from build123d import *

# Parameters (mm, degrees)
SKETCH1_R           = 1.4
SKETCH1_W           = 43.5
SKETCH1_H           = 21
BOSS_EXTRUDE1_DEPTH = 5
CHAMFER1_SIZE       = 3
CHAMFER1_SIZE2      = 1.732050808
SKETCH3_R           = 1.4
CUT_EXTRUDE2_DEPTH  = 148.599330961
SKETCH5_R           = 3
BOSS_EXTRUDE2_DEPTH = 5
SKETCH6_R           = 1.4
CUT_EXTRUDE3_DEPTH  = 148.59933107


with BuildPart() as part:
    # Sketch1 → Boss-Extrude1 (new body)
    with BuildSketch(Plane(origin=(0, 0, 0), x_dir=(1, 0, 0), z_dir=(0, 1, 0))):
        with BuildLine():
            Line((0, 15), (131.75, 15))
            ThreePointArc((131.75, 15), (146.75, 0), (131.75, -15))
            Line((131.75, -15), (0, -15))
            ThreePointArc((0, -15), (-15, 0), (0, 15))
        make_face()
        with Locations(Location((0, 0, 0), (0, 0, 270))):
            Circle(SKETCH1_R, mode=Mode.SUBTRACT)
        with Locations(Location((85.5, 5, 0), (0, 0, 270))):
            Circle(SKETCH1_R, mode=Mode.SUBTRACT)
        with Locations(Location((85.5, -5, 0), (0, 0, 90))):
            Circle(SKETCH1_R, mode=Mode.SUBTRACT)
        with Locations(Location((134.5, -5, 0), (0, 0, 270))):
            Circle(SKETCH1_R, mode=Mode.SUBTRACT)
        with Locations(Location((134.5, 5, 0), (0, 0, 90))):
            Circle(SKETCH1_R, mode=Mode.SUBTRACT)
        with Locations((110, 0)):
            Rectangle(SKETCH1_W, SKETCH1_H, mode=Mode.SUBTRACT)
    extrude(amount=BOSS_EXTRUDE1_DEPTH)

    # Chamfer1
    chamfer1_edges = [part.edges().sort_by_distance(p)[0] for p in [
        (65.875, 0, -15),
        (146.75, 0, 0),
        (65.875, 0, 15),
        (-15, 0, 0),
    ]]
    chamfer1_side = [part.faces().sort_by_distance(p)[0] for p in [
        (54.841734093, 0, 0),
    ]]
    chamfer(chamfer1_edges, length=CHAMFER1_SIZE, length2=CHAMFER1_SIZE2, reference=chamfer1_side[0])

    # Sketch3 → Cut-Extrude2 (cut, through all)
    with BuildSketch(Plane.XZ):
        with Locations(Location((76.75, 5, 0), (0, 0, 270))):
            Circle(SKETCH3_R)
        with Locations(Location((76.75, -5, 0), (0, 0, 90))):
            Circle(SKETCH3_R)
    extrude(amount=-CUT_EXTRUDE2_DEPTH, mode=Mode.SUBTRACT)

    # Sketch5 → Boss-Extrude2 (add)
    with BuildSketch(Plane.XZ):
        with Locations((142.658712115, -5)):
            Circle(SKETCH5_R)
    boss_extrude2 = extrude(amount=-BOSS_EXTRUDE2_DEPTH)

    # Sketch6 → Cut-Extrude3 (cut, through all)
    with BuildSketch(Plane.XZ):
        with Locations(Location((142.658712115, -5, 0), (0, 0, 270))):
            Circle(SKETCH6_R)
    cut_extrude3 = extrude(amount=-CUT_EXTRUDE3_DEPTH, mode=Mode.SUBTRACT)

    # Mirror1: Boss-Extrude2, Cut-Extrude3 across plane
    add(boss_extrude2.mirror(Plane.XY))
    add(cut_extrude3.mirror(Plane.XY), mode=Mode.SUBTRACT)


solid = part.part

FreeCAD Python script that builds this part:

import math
import FreeCAD as App
import Part
import Sketcher

V = App.Vector
Q = App.Units.Quantity


def edges_at(feature, points):
    """Names of the edges that pass closest to the given points."""
    edges = feature.Shape.Edges
    near = lambda p: min(range(len(edges)), key=lambda i: edges[i].distToShape(Part.Vertex(*p))[0])
    return sorted({f"Edge{near(p) + 1}" for p in points})

doc = App.newDocument("Part")
body = doc.addObject("PartDesign::Body", "Body")

# Sketch on XZ plane
sketch1 = doc.addObject("Sketcher::SketchObject", "Sketch")
body.addObject(sketch1)
sketch1.AttachmentSupport = (doc.XZ_Plane, [""])
sketch1.MapMode = "FlatFace"
sketch1.addGeometry(Part.LineSegment(V(131.8, -15, 0), V(0, -15, 0)), False)
sketch1.addGeometry(Part.ArcOfCircle(Part.Circle(V(0, 0, 0), V(0, 0, 1), 15), math.radians(90), math.radians(270)), False)
sketch1.addGeometry(Part.LineSegment(V(0, 15, 0), V(131.8, 15, 0)), False)
sketch1.addGeometry(Part.ArcOfCircle(Part.Circle(V(131.8, 0, 0), V(0, 0, 1), 15), math.radians(-90), math.radians(90)), False)
sketch1.addGeometry(Part.Circle(V(134.5, 5, 0), V(0, 0, 1), 1.4), False)
sketch1.addGeometry(Part.Circle(V(85.5, 5, 0), V(0, 0, 1), 1.4), False)
sketch1.addGeometry(Part.LineSegment(V(88.2, 10.5, 0), V(88.2, -10.5, 0)), False)
sketch1.addGeometry(Part.LineSegment(V(88.2, -10.5, 0), V(131.8, -10.5, 0)), False)
sketch1.addGeometry(Part.LineSegment(V(131.8, -10.5, 0), V(131.8, 10.5, 0)), False)
sketch1.addGeometry(Part.LineSegment(V(131.8, 10.5, 0), V(88.2, 10.5, 0)), False)
sketch1.addGeometry(Part.Circle(V(134.5, -5, 0), V(0, 0, 1), 1.4), False)
sketch1.addGeometry(Part.Circle(V(85.5, -5, 0), V(0, 0, 1), 1.4), False)
sketch1.addGeometry(Part.Circle(V(0, 0, 0), V(0, 0, 1), 1.4), False)
sketch1.addConstraint(Sketcher.Constraint("Tangent", 0, 2, 1, 2))
sketch1.addConstraint(Sketcher.Constraint("Tangent", 1, 1, 2, 1))
sketch1.addConstraint(Sketcher.Constraint("Tangent", 2, 2, 3, 2))
sketch1.addConstraint(Sketcher.Constraint("Tangent", 3, 1, 0, 1))
sketch1.addConstraint(Sketcher.Constraint("Coincident", 6, 2, 7, 1))
sketch1.addConstraint(Sketcher.Constraint("Coincident", 7, 2, 8, 1))
sketch1.addConstraint(Sketcher.Constraint("Coincident", 8, 2, 9, 1))
sketch1.addConstraint(Sketcher.Constraint("Coincident", 9, 2, 6, 1))
sketch1.addConstraint(Sketcher.Constraint("Horizontal", 0))
sketch1.addConstraint(Sketcher.Constraint("Horizontal", 2))
sketch1.addConstraint(Sketcher.Constraint("Vertical", 6))
sketch1.addConstraint(Sketcher.Constraint("Horizontal", 7))
sketch1.addConstraint(Sketcher.Constraint("Vertical", 8))
sketch1.addConstraint(Sketcher.Constraint("Horizontal", 9))
sketch1.addConstraint(Sketcher.Constraint("Coincident", 1, 3, -1, 1))
sketch1.addConstraint(Sketcher.Constraint("Coincident", 12, 3, -1, 1))
sketch1.addConstraint(Sketcher.Constraint("Equal", 4, 5))
sketch1.addConstraint(Sketcher.Constraint("Equal", 5, 10))
sketch1.addConstraint(Sketcher.Constraint("Equal", 10, 11))
sketch1.addConstraint(Sketcher.Constraint("Equal", 11, 12))
sketch1.addConstraint(Sketcher.Constraint("Symmetric", 4, 3, 10, 3, -1))
sketch1.addConstraint(Sketcher.Constraint("Symmetric", 5, 3, 11, 3, -1))
sketch1.addConstraint(Sketcher.Constraint("Horizontal", 4, 3, 5, 3))
sketch1.addConstraint(Sketcher.Constraint("Vertical", 3, 1, 7, 2))
sketch1.addConstraint(Sketcher.Constraint("Radius", 1, Q("15 mm")))
sketch1.addConstraint(Sketcher.Constraint("Diameter", 4, Q("2.8 mm")))
sketch1.addConstraint(Sketcher.Constraint("DistanceY", 6, 2, 6, 1, Q("21 mm")))
sketch1.addConstraint(Sketcher.Constraint("DistanceX", 7, 1, 7, 2, Q("43.5 mm")))
sketch1.addConstraint(Sketcher.Constraint("DistanceY", -1, 1, 4, 3, Q("5 mm")))
sketch1.addConstraint(Sketcher.Constraint("DistanceX", 5, 3, 4, 3, Q("49 mm")))
sketch1.addConstraint(Sketcher.Constraint("DistanceX", 0, 2, 0, 1, Q("131.75 mm")))
sketch1.addConstraint(Sketcher.Constraint("DistanceX", -1, 1, 4, 3, Q("134.5 mm")))
sketch1.addConstraint(Sketcher.Constraint("DistanceY", 6, 2, -1, 1, Q("10.5 mm")))
pad1 = doc.addObject("PartDesign::Pad", "Pad")
body.addObject(pad1)
pad1.Profile = sketch1
pad1.Length = 5
pad1.Reversed = True
doc.recompute()

chamfer = doc.addObject("PartDesign::Chamfer", "Chamfer")
body.addObject(chamfer)
chamfer.Base = (pad1, edges_at(pad1, [
    (65.875, 0, -15),
    (146.75, 0, 0),
    (65.875, 0, 15),
    (-15, 0, 0),
]))
chamfer.ChamferType = "Two distances"
chamfer.Size = 3
chamfer.Size2 = 1.732051
chamfer.FlipDirection = True

# Sketch on XZ plane
sketch2 = doc.addObject("Sketcher::SketchObject", "Sketch001")
body.addObject(sketch2)
sketch2.AttachmentSupport = (doc.XZ_Plane, [""])
sketch2.MapMode = "FlatFace"
sketch2.addGeometry(Part.Circle(V(76.8, 5, 0), V(0, 0, 1), 1.4), False)
sketch2.addGeometry(Part.Circle(V(76.8, -5, 0), V(0, 0, 1), 1.4), False)
sketch2.addConstraint(Sketcher.Constraint("Equal", 0, 1))
sketch2.addConstraint(Sketcher.Constraint("Symmetric", 0, 3, 1, 3, -1))
sketch2.addConstraint(Sketcher.Constraint("Diameter", 0, Q("2.8 mm")))
sketch2.addConstraint(Sketcher.Constraint("DistanceY", -1, 1, 0, 3, Q("5 mm")))
sketch2.addConstraint(Sketcher.Constraint("DistanceX", -1, 1, 0, 3, Q("76.75 mm")))
pocket1 = doc.addObject("PartDesign::Pocket", "Pocket")
body.addObject(pocket1)
pocket1.Profile = sketch2
pocket1.Type = "ThroughAll"

# Sketch on XZ plane
sketch3 = doc.addObject("Sketcher::SketchObject", "Sketch002")
body.addObject(sketch3)
sketch3.AttachmentSupport = (doc.XZ_Plane, [""])
sketch3.MapMode = "FlatFace"
sketch3.addGeometry(Part.Circle(V(142.7, -5, 0), V(0, 0, 1), 3), False)
sketch3.addConstraint(Sketcher.Constraint("Diameter", 0, Q("6 mm")))
sketch3.addConstraint(Sketcher.Constraint("DistanceY", 0, 3, -1, 1, Q("5 mm")))
sketch3.addConstraint(Sketcher.Constraint("DistanceX", -1, 1, 0, 3, Q("142.658712 mm")))
pad2 = doc.addObject("PartDesign::Pad", "Pad001")
body.addObject(pad2)
pad2.Profile = sketch3
pad2.Length = 5
pad2.Reversed = True

# Sketch on XZ plane
sketch4 = doc.addObject("Sketcher::SketchObject", "Sketch003")
body.addObject(sketch4)
sketch4.AttachmentSupport = (doc.XZ_Plane, [""])
sketch4.MapMode = "FlatFace"
sketch4.addGeometry(Part.Circle(V(142.7, -5, 0), V(0, 0, 1), 1.4), False)
sketch4.addConstraint(Sketcher.Constraint("Diameter", 0, Q("2.8 mm")))
sketch4.addConstraint(Sketcher.Constraint("DistanceY", 0, 3, -1, 1, Q("5 mm")))
sketch4.addConstraint(Sketcher.Constraint("DistanceX", -1, 1, 0, 3, Q("142.658712 mm")))
pocket2 = doc.addObject("PartDesign::Pocket", "Pocket001")
body.addObject(pocket2)
pocket2.Profile = sketch4
pocket2.Type = "ThroughAll"
doc.recompute()

mirrored = doc.addObject("PartDesign::Mirrored", "Mirrored")
body.addObject(mirrored)
mirrored.Originals = [pad2, pocket2]
mirrored.MirrorPlane = (doc.XY_Plane, [""])
body.Tip = mirrored

doc.recompute()
